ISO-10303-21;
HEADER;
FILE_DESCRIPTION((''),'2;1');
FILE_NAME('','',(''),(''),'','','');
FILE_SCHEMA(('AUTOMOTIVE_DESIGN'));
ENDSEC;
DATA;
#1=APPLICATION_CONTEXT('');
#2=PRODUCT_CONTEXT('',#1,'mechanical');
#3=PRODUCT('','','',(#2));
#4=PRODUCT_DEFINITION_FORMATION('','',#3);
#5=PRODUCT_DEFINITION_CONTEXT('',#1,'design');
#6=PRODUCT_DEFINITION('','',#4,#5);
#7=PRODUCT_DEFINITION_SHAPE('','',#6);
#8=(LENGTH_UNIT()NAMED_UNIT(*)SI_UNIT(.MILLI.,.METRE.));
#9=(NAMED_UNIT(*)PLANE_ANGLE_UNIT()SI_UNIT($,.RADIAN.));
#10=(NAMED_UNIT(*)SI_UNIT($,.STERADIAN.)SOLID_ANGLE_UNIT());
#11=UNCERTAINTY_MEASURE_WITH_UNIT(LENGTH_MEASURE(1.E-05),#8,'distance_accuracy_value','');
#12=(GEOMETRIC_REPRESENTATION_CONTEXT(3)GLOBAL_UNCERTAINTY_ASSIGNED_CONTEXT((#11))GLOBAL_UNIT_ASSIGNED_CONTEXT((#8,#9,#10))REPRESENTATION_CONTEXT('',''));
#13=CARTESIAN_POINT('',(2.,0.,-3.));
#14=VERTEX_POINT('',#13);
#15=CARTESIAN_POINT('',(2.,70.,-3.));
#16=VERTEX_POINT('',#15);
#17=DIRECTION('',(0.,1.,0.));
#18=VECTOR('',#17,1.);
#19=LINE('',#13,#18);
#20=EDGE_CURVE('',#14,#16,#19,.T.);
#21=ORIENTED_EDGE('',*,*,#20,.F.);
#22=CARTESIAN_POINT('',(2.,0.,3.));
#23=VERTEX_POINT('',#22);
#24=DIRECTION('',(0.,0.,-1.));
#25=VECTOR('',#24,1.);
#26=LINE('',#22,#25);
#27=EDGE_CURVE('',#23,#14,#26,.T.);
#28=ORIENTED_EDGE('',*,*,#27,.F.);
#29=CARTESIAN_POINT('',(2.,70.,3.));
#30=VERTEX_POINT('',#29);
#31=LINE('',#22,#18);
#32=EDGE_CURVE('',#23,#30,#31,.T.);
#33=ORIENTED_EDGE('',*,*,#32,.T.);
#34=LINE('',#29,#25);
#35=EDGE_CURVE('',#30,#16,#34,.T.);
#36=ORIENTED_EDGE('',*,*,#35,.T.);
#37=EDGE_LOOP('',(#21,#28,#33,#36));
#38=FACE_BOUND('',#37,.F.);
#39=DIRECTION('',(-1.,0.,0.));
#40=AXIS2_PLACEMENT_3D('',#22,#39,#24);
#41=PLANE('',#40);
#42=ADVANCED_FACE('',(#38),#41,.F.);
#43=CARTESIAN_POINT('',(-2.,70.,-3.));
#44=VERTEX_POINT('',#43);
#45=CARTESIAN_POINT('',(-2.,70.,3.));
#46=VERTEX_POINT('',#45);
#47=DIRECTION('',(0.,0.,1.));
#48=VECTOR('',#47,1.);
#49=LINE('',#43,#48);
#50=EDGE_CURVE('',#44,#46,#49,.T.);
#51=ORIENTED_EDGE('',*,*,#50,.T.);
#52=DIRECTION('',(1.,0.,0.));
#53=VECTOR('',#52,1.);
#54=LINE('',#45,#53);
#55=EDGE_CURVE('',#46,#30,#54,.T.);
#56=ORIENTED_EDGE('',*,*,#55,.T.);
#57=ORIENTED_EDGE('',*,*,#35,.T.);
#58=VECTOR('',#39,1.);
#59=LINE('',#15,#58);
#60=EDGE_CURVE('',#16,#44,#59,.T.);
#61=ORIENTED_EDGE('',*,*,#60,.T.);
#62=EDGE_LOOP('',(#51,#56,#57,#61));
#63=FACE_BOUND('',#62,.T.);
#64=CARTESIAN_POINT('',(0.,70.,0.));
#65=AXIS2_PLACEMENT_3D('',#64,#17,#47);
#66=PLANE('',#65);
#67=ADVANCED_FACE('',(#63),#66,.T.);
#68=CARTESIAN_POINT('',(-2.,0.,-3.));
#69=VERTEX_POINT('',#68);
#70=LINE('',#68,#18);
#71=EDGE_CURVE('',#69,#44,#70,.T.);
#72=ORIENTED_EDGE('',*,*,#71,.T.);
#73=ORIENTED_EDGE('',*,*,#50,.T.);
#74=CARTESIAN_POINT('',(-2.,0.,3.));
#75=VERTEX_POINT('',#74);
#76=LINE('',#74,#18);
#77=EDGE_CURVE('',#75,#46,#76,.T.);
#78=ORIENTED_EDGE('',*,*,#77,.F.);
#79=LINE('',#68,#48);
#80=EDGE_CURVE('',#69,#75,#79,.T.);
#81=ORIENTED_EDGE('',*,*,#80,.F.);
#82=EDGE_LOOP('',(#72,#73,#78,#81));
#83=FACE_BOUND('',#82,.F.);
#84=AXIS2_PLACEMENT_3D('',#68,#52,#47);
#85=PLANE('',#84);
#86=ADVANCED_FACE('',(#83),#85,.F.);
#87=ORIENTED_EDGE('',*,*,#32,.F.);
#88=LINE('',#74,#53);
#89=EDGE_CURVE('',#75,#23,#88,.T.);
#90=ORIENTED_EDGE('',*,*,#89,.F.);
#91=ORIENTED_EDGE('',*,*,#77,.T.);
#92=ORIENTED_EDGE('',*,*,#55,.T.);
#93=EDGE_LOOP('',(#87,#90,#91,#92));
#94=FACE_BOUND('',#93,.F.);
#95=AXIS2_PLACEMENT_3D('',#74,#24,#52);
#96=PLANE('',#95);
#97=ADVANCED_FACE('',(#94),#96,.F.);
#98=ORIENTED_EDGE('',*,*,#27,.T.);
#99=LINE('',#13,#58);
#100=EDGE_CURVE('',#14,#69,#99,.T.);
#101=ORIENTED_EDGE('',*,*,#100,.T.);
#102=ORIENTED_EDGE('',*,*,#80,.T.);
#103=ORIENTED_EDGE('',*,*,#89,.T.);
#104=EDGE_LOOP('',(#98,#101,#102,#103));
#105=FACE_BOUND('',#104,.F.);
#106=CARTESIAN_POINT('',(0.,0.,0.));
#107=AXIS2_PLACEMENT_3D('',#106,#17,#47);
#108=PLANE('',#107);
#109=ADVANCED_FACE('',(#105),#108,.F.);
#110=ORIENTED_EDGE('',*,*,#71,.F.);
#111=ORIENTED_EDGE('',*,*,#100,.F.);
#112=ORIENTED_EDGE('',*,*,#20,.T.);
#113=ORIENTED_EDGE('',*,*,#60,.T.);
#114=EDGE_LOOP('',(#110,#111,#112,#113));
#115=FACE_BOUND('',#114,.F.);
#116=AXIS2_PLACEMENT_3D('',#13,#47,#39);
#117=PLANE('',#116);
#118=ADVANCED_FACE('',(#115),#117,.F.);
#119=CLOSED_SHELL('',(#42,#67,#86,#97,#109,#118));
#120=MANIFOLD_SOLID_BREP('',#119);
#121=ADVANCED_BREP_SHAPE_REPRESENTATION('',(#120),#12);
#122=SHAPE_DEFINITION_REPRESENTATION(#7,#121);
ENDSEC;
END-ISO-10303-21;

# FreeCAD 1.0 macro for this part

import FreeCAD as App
import Part
import Sketcher
from FreeCAD import Vector
Q = App.Units.Quantity

doc = App.newDocument("Part")
body = doc.addObject("PartDesign::Body", "Body")

sketch1 = body.newObject("Sketcher::SketchObject", "Sketch")
sketch1.AttachmentSupport = (doc.getObject("XZ_Plane"), [""])
sketch1.MapMode = "FlatFace"
sketch1.addGeometry(Part.LineSegment(Vector(2, 3, 0), Vector(-2, 3, 0)), False)
sketch1.addGeometry(Part.LineSegment(Vector(-2, 3, 0), Vector(-2, -3, 0)), False)
sketch1.addGeometry(Part.LineSegment(Vector(-2, -3, 0), Vector(2, -3, 0)), False)
sketch1.addGeometry(Part.LineSegment(Vector(2, -3, 0), Vector(2, 3, 0)), False)
sketch1.addConstraint(Sketcher.Constraint("Coincident", 0, 2, 1, 1))
sketch1.addConstraint(Sketcher.Constraint("Coincident", 1, 2, 2, 1))
sketch1.addConstraint(Sketcher.Constraint("Coincident", 2, 2, 3, 1))
sketch1.addConstraint(Sketcher.Constraint("Coincident", 3, 2, 0, 1))
sketch1.addConstraint(Sketcher.Constraint("Horizontal", 0))
sketch1.addConstraint(Sketcher.Constraint("Vertical", 1))
sketch1.addConstraint(Sketcher.Constraint("Horizontal", 2))
sketch1.addConstraint(Sketcher.Constraint("Vertical", 3))
sketch1.addConstraint(Sketcher.Constraint("Symmetric", 0, 2, 2, 2, -1, 1))
sketch1.addConstraint(Sketcher.Constraint("DistanceX", 0, 2, -1, 1, Q("2 mm")))
sketch1.addConstraint(Sketcher.Constraint("DistanceY", 1, 2, 1, 1, Q("6 mm")))
pad1 = body.newObject("PartDesign::Pad", "Pad")
pad1.Profile = sketch1
pad1.Length = 70
pad1.Reversed = True

doc.recompute()
